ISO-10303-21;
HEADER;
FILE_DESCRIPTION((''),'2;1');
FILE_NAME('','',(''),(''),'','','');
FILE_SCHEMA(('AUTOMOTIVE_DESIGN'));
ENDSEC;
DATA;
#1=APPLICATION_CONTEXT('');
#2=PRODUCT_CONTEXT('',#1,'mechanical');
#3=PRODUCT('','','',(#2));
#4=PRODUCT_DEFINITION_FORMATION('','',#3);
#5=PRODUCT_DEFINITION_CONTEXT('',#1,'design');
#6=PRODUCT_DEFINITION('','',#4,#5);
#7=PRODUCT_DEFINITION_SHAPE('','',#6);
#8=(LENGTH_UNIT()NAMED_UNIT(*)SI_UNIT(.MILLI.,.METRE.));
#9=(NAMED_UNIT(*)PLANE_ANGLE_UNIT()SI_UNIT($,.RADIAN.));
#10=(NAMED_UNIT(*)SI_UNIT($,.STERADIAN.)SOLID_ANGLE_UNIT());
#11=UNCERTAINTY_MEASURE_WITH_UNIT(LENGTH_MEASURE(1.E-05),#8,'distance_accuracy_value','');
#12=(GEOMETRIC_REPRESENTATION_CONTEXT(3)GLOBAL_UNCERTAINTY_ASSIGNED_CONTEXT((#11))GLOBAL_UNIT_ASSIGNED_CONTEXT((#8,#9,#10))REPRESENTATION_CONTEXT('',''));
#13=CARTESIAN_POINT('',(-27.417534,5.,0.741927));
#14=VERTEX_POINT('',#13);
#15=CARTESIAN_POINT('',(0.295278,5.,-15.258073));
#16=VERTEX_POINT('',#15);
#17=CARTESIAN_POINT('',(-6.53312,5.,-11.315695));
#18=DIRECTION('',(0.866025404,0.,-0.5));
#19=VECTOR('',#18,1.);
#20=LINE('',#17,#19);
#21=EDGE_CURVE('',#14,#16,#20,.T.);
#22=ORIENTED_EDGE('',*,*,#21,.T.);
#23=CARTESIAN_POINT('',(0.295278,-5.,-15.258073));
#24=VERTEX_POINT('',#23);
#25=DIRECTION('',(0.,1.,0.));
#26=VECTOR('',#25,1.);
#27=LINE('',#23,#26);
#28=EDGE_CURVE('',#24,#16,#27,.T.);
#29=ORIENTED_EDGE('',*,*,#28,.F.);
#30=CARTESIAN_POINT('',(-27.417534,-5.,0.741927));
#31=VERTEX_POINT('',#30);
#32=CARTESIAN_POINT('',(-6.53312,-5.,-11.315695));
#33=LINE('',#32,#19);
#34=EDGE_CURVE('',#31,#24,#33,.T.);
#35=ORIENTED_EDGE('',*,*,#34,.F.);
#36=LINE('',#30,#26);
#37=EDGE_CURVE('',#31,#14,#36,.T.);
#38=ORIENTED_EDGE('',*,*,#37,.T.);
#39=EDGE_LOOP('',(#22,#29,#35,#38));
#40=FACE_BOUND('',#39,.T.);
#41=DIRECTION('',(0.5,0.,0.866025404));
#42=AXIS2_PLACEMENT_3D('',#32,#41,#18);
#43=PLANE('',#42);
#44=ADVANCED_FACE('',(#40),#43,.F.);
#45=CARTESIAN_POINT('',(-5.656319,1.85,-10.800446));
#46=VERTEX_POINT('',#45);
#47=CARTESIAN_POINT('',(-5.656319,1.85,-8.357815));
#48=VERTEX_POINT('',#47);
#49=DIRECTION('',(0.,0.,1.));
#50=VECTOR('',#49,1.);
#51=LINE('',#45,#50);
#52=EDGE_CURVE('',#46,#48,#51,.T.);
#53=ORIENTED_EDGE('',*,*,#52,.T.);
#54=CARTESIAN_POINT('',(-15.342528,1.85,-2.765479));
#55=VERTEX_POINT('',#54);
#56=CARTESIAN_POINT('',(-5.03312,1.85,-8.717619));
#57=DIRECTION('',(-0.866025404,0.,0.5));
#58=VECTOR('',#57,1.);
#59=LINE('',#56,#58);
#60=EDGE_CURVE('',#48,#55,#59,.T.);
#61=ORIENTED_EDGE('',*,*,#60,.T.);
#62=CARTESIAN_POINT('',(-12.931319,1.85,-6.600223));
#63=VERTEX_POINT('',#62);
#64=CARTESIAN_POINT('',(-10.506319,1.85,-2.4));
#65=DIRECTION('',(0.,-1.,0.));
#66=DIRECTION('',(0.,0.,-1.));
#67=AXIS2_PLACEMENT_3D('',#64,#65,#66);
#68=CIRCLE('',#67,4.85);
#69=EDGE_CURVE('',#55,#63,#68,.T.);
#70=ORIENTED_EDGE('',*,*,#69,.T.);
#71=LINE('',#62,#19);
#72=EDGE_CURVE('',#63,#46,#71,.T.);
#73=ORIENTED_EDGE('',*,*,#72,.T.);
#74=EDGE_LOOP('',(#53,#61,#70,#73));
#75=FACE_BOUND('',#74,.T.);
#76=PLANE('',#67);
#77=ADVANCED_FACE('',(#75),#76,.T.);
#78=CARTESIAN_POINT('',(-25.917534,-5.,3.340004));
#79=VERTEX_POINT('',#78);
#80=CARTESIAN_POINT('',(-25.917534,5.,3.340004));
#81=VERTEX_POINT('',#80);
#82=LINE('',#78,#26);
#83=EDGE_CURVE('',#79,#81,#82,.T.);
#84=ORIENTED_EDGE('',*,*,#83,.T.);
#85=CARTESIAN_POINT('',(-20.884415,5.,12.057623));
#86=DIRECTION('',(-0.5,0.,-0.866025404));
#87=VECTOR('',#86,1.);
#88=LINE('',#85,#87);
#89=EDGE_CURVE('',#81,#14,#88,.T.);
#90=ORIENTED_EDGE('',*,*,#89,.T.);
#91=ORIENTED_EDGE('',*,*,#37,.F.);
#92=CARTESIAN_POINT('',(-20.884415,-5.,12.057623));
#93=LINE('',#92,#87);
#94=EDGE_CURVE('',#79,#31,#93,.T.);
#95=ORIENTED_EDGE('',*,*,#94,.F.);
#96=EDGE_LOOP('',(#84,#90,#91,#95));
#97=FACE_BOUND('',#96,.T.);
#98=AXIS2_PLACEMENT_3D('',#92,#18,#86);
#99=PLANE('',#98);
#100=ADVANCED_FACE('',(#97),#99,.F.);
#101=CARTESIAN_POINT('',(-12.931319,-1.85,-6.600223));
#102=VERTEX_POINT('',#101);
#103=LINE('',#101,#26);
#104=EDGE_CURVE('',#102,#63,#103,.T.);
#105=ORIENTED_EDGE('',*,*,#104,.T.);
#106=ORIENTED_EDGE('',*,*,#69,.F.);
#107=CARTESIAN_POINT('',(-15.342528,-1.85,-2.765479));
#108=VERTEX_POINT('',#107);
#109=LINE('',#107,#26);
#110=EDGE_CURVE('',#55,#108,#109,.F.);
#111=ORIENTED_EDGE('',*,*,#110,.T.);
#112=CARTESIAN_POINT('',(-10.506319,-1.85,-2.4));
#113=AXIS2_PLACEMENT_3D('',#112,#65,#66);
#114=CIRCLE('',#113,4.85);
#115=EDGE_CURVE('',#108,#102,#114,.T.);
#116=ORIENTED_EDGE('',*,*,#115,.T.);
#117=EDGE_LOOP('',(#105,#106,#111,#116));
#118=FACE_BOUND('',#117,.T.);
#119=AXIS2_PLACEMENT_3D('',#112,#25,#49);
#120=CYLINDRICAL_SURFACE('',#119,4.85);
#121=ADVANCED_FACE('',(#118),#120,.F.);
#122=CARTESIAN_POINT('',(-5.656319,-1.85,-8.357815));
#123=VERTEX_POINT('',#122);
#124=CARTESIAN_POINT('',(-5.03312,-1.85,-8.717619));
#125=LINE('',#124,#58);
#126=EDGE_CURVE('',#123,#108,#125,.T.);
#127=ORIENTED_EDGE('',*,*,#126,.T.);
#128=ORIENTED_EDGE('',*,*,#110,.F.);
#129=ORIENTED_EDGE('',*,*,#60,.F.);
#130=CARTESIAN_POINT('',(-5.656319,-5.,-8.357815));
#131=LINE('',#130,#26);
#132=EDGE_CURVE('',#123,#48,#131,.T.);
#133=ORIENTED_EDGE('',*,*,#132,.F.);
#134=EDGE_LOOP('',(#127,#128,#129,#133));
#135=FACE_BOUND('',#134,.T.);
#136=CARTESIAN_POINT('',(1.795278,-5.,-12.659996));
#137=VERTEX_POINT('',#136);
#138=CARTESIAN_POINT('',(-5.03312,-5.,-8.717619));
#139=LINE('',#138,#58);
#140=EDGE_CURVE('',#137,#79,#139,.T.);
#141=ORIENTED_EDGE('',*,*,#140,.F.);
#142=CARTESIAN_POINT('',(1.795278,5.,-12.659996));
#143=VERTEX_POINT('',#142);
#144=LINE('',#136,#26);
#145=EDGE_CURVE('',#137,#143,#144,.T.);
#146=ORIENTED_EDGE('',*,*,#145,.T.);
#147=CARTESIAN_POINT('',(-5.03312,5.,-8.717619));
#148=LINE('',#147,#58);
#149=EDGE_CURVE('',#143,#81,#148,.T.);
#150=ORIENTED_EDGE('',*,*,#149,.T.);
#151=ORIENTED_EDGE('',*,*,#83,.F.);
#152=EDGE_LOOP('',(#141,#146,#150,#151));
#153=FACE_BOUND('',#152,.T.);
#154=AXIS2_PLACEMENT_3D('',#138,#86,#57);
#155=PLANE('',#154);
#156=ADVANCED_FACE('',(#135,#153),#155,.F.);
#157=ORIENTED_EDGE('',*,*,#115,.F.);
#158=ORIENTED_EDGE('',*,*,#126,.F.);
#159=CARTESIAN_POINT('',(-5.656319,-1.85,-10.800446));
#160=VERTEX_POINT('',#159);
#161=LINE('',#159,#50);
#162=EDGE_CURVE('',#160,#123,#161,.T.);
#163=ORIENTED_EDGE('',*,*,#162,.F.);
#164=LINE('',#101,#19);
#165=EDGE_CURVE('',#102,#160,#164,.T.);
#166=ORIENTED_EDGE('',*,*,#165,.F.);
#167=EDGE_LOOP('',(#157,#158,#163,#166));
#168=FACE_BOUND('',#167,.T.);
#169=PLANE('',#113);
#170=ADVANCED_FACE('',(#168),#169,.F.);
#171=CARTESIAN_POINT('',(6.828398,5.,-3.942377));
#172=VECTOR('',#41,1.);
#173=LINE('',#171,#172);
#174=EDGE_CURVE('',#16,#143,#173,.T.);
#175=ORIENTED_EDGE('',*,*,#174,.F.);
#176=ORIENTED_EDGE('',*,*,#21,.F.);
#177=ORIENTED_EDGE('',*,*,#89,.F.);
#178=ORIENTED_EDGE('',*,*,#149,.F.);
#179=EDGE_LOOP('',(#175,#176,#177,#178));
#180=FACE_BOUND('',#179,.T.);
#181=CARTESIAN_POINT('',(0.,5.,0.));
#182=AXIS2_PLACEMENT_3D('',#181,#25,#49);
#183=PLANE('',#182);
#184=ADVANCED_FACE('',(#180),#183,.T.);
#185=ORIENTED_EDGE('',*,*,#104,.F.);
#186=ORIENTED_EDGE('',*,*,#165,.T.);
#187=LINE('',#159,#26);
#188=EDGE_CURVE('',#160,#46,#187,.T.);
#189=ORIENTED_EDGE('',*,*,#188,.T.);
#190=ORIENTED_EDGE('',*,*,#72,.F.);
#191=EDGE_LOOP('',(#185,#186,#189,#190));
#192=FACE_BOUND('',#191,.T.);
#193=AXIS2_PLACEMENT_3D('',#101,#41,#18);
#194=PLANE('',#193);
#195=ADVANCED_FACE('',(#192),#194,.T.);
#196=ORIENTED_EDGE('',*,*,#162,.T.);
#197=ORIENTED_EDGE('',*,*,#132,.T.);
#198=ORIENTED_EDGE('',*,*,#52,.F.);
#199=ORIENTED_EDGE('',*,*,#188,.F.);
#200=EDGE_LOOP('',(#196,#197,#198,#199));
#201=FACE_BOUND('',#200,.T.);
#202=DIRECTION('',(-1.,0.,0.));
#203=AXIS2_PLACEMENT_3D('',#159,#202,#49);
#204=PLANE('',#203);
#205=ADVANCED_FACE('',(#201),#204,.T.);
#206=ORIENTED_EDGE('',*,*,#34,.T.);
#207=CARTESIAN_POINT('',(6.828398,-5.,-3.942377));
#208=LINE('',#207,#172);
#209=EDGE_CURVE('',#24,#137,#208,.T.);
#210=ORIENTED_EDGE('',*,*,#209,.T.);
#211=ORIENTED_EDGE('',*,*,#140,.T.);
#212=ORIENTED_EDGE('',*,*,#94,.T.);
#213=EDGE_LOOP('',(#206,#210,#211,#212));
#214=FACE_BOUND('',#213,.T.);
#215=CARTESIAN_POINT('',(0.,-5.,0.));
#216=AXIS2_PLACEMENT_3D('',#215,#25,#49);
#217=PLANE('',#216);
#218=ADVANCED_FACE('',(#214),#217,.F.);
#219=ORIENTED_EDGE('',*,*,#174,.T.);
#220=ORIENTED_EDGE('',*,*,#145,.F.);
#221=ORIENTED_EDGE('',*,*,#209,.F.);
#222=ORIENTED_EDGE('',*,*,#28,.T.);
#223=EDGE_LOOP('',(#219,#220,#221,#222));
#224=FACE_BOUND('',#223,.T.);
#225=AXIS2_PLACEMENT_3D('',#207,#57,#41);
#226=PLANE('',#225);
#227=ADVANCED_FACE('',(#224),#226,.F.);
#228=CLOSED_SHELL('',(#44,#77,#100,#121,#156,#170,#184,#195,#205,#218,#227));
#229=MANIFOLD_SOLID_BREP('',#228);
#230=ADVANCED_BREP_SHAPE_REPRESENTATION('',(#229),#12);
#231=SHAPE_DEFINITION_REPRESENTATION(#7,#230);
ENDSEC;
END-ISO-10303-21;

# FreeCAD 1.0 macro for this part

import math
import FreeCAD as App
import Part
import Sketcher
Q = App.Units.Quantity

doc = App.newDocument("Part")
body = doc.addObject("PartDesign::Body", "Body")

# Sketch on XZ plane
sketch1 = body.newObject("Sketcher::SketchObject", "Sketch")
sketch1.AttachmentSupport = (doc.getObject("XZ_Plane"), [""])
sketch1.MapMode = "FlatFace"
sketch1.addGeometry([
    Part.LineSegment(App.Vector(-25.9, 3.3, 0), App.Vector(1.8, -12.7, 0)),
    Part.LineSegment(App.Vector(1.8, -12.7, 0), App.Vector(0.3, -15.3, 0)),
    Part.LineSegment(App.Vector(0.3, -15.3, 0), App.Vector(-27.4, 0.7, 0)),
    Part.LineSegment(App.Vector(-27.4, 0.7, 0), App.Vector(-25.9, 3.3, 0)),
], False)
sketch1.addConstraint([
    Sketcher.Constraint("Coincident", 0, 2, 1, 1),
    Sketcher.Constraint("Coincident", 1, 2, 2, 1),
    Sketcher.Constraint("Coincident", 2, 2, 3, 1),
    Sketcher.Constraint("Coincident", 3, 2, 0, 1),
    Sketcher.Constraint("Perpendicular", 0, 1),
    Sketcher.Constraint("Perpendicular", 1, 2),
    Sketcher.Constraint("Perpendicular", 2, 3),
    Sketcher.Constraint("Angle", 0, Q("-30 deg")),
    Sketcher.Constraint("Distance", 0, 32.0),
    Sketcher.Constraint("Distance", 1, 3.0),
    Sketcher.Constraint("DistanceX", -1, 1, 0, 2, 1.795278),
    Sketcher.Constraint("DistanceY", 0, 2, -1, 1, 12.659996),
])
pad1 = body.newObject("PartDesign::Pad", "Pad")
pad1.Profile = sketch1
pad1.Type = "TwoLengths"
pad1.Length = 5
pad1.Length2 = 5
pad1.Reversed = True

# Sketch on XZ plane
sketch2 = body.newObject("Sketcher::SketchObject", "Sketch001")
sketch2.AttachmentSupport = (doc.getObject("XZ_Plane"), [""])
sketch2.MapMode = "FlatFace"
sketch2.addGeometry([
    Part.LineSegment(App.Vector(-15.4, -2.4, 0), App.Vector(-15.4, 0.7, 0)),  # 0
    Part.LineSegment(App.Vector(-15.4, 0.7, 0), App.Vector(-5.7, -4.9, 0)),  # 1
    Part.LineSegment(App.Vector(-5.7, -4.9, 0), App.Vector(-5.7, -10.8, 0)),  # 2
    Part.LineSegment(App.Vector(-5.7, -10.8, 0), App.Vector(-12.9, -6.6, 0)),  # 3
    Part.ArcOfCircle(Part.Circle(App.Vector(-10.5, -2.4, 0), App.Vector(0, 0, 1), 4.8), math.radians(180), math.radians(240)),  # 4
], False)
sketch2.addConstraint([
    Sketcher.Constraint("Coincident", 0, 2, 1, 1),
    Sketcher.Constraint("Coincident", 1, 2, 2, 1),
    Sketcher.Constraint("Coincident", 2, 2, 3, 1),
    Sketcher.Constraint("Tangent", 3, 2, 4, 2),
    Sketcher.Constraint("Tangent", 4, 1, 0, 1),
    Sketcher.Constraint("Vertical", 0),
    Sketcher.Constraint("Vertical", 2),
    Sketcher.Constraint("Parallel", 1, 3),
    Sketcher.Constraint("Angle", 1, Q("-30 deg")),
    Sketcher.Constraint("Radius", 4, 4.85),
    Sketcher.Constraint("DistanceY", 4, 3, -1, 1, 2.4),
    Sketcher.Constraint("DistanceX", 0, 2, 1, 2, 9.7),
    Sketcher.Constraint("DistanceY", 0, 1, 0, 2, 3.106584),
    Sketcher.Constraint("DistanceX", 4, 3, -1, 1, 10.506319),
])
pocket1 = body.newObject("PartDesign::Pocket", "Pocket")
pocket1.Profile = sketch2
pocket1.Length = 3.7
pocket1.Midplane = True

doc.recompute()
